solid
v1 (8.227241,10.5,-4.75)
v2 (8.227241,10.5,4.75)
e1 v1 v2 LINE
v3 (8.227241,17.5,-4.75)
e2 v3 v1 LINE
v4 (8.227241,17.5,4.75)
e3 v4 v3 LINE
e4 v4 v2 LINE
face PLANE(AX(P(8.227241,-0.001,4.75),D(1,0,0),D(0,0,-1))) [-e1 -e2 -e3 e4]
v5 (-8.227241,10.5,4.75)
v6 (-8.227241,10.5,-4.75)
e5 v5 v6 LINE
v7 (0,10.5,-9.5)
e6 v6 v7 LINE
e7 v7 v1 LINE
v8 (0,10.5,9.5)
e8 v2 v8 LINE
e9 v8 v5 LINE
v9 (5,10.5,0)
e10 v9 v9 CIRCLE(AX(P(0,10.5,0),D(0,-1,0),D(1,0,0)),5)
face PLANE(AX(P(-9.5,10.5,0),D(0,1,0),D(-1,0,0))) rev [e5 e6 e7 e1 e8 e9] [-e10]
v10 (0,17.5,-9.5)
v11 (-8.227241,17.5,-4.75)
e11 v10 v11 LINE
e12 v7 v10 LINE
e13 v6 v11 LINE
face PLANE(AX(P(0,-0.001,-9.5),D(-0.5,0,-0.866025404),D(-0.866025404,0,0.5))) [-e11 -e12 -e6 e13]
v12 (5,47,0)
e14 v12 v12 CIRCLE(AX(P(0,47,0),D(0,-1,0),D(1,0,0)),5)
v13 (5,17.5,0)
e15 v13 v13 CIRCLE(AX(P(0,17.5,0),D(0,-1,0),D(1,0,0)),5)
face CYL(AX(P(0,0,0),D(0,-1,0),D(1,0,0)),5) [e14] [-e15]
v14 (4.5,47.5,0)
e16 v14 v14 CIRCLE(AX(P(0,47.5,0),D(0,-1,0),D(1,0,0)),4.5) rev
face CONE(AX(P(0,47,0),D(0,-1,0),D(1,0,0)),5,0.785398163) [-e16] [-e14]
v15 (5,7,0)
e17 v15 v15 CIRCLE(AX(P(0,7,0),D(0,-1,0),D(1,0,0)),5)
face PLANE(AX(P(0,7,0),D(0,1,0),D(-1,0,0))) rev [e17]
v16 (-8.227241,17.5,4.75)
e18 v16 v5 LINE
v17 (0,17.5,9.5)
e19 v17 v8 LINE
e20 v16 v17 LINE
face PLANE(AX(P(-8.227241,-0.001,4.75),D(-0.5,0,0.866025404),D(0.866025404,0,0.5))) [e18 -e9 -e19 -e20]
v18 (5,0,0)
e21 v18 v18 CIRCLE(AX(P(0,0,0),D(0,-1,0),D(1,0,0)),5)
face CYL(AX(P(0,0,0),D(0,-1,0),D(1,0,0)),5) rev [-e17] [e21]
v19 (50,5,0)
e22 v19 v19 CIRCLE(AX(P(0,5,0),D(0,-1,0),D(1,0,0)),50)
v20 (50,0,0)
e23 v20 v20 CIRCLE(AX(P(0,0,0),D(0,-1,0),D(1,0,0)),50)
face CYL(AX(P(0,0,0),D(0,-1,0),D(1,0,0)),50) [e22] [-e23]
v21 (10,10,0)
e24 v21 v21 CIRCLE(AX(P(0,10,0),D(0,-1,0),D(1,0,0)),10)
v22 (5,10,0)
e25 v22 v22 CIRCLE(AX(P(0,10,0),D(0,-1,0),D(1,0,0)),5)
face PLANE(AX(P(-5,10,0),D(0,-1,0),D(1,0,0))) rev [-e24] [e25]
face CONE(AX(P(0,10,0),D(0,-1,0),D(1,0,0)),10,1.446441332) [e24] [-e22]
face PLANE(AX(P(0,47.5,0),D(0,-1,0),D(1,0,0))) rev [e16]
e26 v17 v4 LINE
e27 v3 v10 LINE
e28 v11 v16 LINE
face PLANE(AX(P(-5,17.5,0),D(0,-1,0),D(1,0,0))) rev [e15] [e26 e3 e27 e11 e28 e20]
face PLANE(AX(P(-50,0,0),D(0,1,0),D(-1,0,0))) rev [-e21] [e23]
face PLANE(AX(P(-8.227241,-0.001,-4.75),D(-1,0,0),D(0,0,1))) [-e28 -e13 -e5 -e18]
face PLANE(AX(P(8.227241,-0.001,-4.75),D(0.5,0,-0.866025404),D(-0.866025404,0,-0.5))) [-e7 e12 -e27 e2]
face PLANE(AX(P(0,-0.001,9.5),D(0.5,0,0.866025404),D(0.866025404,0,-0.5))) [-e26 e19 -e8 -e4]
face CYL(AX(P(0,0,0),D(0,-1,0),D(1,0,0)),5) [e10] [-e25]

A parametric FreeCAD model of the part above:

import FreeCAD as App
import Part
import Sketcher
Q = App.Units.Quantity


def edges_at(feature, points):
    """Names of the edges that pass closest to the given points."""
    edges = feature.Shape.Edges
    near = lambda p: min(range(len(edges)), key=lambda i: edges[i].distToShape(Part.Vertex(*p))[0])
    return sorted({f"Edge{near(p) + 1}" for p in points})

doc = App.newDocument("Part")
body = doc.addObject("PartDesign::Body", "Body")

sketch1 = doc.addObject("Sketcher::SketchObject", "Sketch")
body.addObject(sketch1)
sketch1.AttachmentSupport = (doc.XY_Plane, [""])
sketch1.MapMode = "FlatFace"
sketch1.addGeometry(Part.LineSegment(App.Vector(0, 47.5, 0), App.Vector(-5, 47.5, 0)), False)
sketch1.addGeometry(Part.LineSegment(App.Vector(-5, 47.5, 0), App.Vector(-5, 17.5, 0)), False)
sketch1.addGeometry(Part.LineSegment(App.Vector(-5, 17.5, 0), App.Vector(-9.5, 17.5, 0)), False)
sketch1.addGeometry(Part.LineSegment(App.Vector(-9.5, 17.5, 0), App.Vector(-9.5, 10.5, 0)), False)
sketch1.addGeometry(Part.LineSegment(App.Vector(-9.5, 10.5, 0), App.Vector(-5, 10.5, 0)), False)
sketch1.addGeometry(Part.LineSegment(App.Vector(-5, 10.5, 0), App.Vector(-5, 10, 0)), False)
sketch1.addGeometry(Part.LineSegment(App.Vector(-5, 10, 0), App.Vector(-10, 10, 0)), False)
sketch1.addGeometry(Part.LineSegment(App.Vector(-10, 10, 0), App.Vector(-50, 5, 0)), False)
sketch1.addGeometry(Part.LineSegment(App.Vector(-50, 5, 0), App.Vector(-50, 0, 0)), False)
sketch1.addGeometry(Part.LineSegment(App.Vector(-50, 0, 0), App.Vector(-5, 0, 0)), False)
sketch1.addGeometry(Part.LineSegment(App.Vector(-5, 0, 0), App.Vector(-5, 7, 0)), False)
sketch1.addGeometry(Part.LineSegment(App.Vector(-5, 7, 0), App.Vector(0, 7, 0)), False)
sketch1.addGeometry(Part.LineSegment(App.Vector(0, 7, 0), App.Vector(0, 47.5, 0)), False)
sketch1.addConstraint(Sketcher.Constraint("Coincident", 0, 2, 1, 1))
sketch1.addConstraint(Sketcher.Constraint("Coincident", 1, 2, 2, 1))
sketch1.addConstraint(Sketcher.Constraint("Coincident", 2, 2, 3, 1))
sketch1.addConstraint(Sketcher.Constraint("Coincident", 3, 2, 4, 1))
sketch1.addConstraint(Sketcher.Constraint("Coincident", 4, 2, 5, 1))
sketch1.addConstraint(Sketcher.Constraint("Coincident", 5, 2, 6, 1))
sketch1.addConstraint(Sketcher.Constraint("Coincident", 6, 2, 7, 1))
sketch1.addConstraint(Sketcher.Constraint("Coincident", 7, 2, 8, 1))
sketch1.addConstraint(Sketcher.Constraint("Coincident", 8, 2, 9, 1))
sketch1.addConstraint(Sketcher.Constraint("Coincident", 9, 2, 10, 1))
sketch1.addConstraint(Sketcher.Constraint("Coincident", 10, 2, 11, 1))
sketch1.addConstraint(Sketcher.Constraint("Coincident", 11, 2, 12, 1))
sketch1.addConstraint(Sketcher.Constraint("Coincident", 12, 2, 0, 1))
sketch1.addConstraint(Sketcher.Constraint("Horizontal", 0))
sketch1.addConstraint(Sketcher.Constraint("Vertical", 1))
sketch1.addConstraint(Sketcher.Constraint("Horizontal", 2))
sketch1.addConstraint(Sketcher.Constraint("Vertical", 3))
sketch1.addConstraint(Sketcher.Constraint("Horizontal", 4))
sketch1.addConstraint(Sketcher.Constraint("Vertical", 5))
sketch1.addConstraint(Sketcher.Constraint("Horizontal", 6))
sketch1.addConstraint(Sketcher.Constraint("Vertical", 8))
sketch1.addConstraint(Sketcher.Constraint("Horizontal", 9))
sketch1.addConstraint(Sketcher.Constraint("Vertical", 10))
sketch1.addConstraint(Sketcher.Constraint("Horizontal", 11))
sketch1.addConstraint(Sketcher.Constraint("Vertical", 12))
sketch1.addConstraint(Sketcher.Constraint("PointOnObject", 8, 2, -1))
sketch1.addConstraint(Sketcher.Constraint("PointOnObject", 11, 2, -2))
sketch1.addConstraint(Sketcher.Constraint("Vertical", 1, 2, 4, 2))
sketch1.addConstraint(Sketcher.Constraint("Vertical", 5, 2, 9, 2))
sketch1.addConstraint(Sketcher.Constraint("Equal", 0, 6))
sketch1.addConstraint(Sketcher.Constraint("Equal", 11, 8))
sketch1.addConstraint(Sketcher.Constraint("Equal", 3, 10))
sketch1.addConstraint(Sketcher.Constraint("DistanceX", 0, 2, 0, 1, 5.0))
sketch1.addConstraint(Sketcher.Constraint("DistanceX", 9, 1, 9, 2, 45.0))
sketch1.addConstraint(Sketcher.Constraint("DistanceY", 1, 2, 1, 1, 30.0))
sketch1.addConstraint(Sketcher.Constraint("DistanceY", 3, 2, 3, 1, 7.0))
sketch1.addConstraint(Sketcher.Constraint("DistanceX", 2, 2, 2, 1, 4.5))
sketch1.addConstraint(Sketcher.Constraint("DistanceY", 5, 2, 5, 1, 0.5))
sketch1.addConstraint(Sketcher.Constraint("DistanceY", 12, 1, 12, 2, 40.5))
revolution = doc.addObject("PartDesign::Revolution", "Revolution")
body.addObject(revolution)
revolution.Profile = sketch1
revolution.ReferenceAxis = (sketch1, ["V_Axis"])
revolution.Angle = 360
doc.recompute()

chamfer = doc.addObject("PartDesign::Chamfer", "Chamfer")
body.addObject(chamfer)
chamfer.Base = (revolution, edges_at(revolution, [(-5, 47.5, 0)]))
chamfer.Size = 0.5

sketch2 = doc.addObject("Sketcher::SketchObject", "Sketch001")
body.addObject(sketch2)
sketch2.AttachmentSupport = (doc.XZ_Plane, [""])
sketch2.MapMode = "FlatFace"
sketch2.AttachmentOffset = App.Placement(App.Vector(0, 0, -10.5), App.Rotation())
sketch2.addGeometry(Part.Circle(App.Vector(0, 0, 0), App.Vector(0, 0, 1), 12.139774), False)
sketch2.addGeometry(Part.LineSegment(App.Vector(-8.227241, -4.75, 0), App.Vector(0, -9.5, 0)), False)
sketch2.addGeometry(Part.LineSegment(App.Vector(0, -9.5, 0), App.Vector(8.227241, -4.75, 0)), False)
sketch2.addGeometry(Part.LineSegment(App.Vector(8.227241, -4.75, 0), App.Vector(8.227241, 4.75, 0)), False)
sketch2.addGeometry(Part.LineSegment(App.Vector(8.227241, 4.75, 0), App.Vector(0, 9.5, 0)), False)
sketch2.addGeometry(Part.LineSegment(App.Vector(0, 9.5, 0), App.Vector(-8.227241, 4.75, 0)), False)
sketch2.addGeometry(Part.LineSegment(App.Vector(-8.227241, 4.75, 0), App.Vector(-8.227241, -4.75, 0)), False)
sketch2.addConstraint(Sketcher.Constraint("Coincident", 1, 2, 2, 1))
sketch2.addConstraint(Sketcher.Constraint("Coincident", 2, 2, 3, 1))
sketch2.addConstraint(Sketcher.Constraint("Coincident", 3, 2, 4, 1))
sketch2.addConstraint(Sketcher.Constraint("Coincident", 4, 2, 5, 1))
sketch2.addConstraint(Sketcher.Constraint("Coincident", 5, 2, 6, 1))
sketch2.addConstraint(Sketcher.Constraint("Coincident", 6, 2, 1, 1))
sketch2.addConstraint(Sketcher.Constraint("Vertical", 3))
sketch2.addConstraint(Sketcher.Constraint("Vertical", 6))
sketch2.addConstraint(Sketcher.Constraint("Coincident", 0, 3, -1, 1))
sketch2.addConstraint(Sketcher.Constraint("Symmetric", 1, 2, 4, 2, -1, 1))
sketch2.addConstraint(Sketcher.Constraint("Symmetric", 2, 2, 5, 2, -1, 1))
sketch2.addConstraint(Sketcher.Constraint("PointOnObject", 1, 2, -2))
sketch2.addConstraint(Sketcher.Constraint("Parallel", 1, 4))
sketch2.addConstraint(Sketcher.Constraint("Horizontal", 3, 2, 5, 2))
sketch2.addConstraint(Sketcher.Constraint("Angle", 1, Q("-30 deg")))
sketch2.addConstraint(Sketcher.Constraint("DistanceY", 3, 1, 3, 2, 9.5))
sketch2.addConstraint(Sketcher.Constraint("DistanceY", 1, 2, 4, 2, 19.0))
sketch2.addConstraint(Sketcher.Constraint("Diameter", 0, 24.279547))
pocket1 = doc.addObject("PartDesign::Pocket", "Pocket")
body.addObject(pocket1)
pocket1.Profile = sketch2
pocket1.Length = 7

doc.recompute()
